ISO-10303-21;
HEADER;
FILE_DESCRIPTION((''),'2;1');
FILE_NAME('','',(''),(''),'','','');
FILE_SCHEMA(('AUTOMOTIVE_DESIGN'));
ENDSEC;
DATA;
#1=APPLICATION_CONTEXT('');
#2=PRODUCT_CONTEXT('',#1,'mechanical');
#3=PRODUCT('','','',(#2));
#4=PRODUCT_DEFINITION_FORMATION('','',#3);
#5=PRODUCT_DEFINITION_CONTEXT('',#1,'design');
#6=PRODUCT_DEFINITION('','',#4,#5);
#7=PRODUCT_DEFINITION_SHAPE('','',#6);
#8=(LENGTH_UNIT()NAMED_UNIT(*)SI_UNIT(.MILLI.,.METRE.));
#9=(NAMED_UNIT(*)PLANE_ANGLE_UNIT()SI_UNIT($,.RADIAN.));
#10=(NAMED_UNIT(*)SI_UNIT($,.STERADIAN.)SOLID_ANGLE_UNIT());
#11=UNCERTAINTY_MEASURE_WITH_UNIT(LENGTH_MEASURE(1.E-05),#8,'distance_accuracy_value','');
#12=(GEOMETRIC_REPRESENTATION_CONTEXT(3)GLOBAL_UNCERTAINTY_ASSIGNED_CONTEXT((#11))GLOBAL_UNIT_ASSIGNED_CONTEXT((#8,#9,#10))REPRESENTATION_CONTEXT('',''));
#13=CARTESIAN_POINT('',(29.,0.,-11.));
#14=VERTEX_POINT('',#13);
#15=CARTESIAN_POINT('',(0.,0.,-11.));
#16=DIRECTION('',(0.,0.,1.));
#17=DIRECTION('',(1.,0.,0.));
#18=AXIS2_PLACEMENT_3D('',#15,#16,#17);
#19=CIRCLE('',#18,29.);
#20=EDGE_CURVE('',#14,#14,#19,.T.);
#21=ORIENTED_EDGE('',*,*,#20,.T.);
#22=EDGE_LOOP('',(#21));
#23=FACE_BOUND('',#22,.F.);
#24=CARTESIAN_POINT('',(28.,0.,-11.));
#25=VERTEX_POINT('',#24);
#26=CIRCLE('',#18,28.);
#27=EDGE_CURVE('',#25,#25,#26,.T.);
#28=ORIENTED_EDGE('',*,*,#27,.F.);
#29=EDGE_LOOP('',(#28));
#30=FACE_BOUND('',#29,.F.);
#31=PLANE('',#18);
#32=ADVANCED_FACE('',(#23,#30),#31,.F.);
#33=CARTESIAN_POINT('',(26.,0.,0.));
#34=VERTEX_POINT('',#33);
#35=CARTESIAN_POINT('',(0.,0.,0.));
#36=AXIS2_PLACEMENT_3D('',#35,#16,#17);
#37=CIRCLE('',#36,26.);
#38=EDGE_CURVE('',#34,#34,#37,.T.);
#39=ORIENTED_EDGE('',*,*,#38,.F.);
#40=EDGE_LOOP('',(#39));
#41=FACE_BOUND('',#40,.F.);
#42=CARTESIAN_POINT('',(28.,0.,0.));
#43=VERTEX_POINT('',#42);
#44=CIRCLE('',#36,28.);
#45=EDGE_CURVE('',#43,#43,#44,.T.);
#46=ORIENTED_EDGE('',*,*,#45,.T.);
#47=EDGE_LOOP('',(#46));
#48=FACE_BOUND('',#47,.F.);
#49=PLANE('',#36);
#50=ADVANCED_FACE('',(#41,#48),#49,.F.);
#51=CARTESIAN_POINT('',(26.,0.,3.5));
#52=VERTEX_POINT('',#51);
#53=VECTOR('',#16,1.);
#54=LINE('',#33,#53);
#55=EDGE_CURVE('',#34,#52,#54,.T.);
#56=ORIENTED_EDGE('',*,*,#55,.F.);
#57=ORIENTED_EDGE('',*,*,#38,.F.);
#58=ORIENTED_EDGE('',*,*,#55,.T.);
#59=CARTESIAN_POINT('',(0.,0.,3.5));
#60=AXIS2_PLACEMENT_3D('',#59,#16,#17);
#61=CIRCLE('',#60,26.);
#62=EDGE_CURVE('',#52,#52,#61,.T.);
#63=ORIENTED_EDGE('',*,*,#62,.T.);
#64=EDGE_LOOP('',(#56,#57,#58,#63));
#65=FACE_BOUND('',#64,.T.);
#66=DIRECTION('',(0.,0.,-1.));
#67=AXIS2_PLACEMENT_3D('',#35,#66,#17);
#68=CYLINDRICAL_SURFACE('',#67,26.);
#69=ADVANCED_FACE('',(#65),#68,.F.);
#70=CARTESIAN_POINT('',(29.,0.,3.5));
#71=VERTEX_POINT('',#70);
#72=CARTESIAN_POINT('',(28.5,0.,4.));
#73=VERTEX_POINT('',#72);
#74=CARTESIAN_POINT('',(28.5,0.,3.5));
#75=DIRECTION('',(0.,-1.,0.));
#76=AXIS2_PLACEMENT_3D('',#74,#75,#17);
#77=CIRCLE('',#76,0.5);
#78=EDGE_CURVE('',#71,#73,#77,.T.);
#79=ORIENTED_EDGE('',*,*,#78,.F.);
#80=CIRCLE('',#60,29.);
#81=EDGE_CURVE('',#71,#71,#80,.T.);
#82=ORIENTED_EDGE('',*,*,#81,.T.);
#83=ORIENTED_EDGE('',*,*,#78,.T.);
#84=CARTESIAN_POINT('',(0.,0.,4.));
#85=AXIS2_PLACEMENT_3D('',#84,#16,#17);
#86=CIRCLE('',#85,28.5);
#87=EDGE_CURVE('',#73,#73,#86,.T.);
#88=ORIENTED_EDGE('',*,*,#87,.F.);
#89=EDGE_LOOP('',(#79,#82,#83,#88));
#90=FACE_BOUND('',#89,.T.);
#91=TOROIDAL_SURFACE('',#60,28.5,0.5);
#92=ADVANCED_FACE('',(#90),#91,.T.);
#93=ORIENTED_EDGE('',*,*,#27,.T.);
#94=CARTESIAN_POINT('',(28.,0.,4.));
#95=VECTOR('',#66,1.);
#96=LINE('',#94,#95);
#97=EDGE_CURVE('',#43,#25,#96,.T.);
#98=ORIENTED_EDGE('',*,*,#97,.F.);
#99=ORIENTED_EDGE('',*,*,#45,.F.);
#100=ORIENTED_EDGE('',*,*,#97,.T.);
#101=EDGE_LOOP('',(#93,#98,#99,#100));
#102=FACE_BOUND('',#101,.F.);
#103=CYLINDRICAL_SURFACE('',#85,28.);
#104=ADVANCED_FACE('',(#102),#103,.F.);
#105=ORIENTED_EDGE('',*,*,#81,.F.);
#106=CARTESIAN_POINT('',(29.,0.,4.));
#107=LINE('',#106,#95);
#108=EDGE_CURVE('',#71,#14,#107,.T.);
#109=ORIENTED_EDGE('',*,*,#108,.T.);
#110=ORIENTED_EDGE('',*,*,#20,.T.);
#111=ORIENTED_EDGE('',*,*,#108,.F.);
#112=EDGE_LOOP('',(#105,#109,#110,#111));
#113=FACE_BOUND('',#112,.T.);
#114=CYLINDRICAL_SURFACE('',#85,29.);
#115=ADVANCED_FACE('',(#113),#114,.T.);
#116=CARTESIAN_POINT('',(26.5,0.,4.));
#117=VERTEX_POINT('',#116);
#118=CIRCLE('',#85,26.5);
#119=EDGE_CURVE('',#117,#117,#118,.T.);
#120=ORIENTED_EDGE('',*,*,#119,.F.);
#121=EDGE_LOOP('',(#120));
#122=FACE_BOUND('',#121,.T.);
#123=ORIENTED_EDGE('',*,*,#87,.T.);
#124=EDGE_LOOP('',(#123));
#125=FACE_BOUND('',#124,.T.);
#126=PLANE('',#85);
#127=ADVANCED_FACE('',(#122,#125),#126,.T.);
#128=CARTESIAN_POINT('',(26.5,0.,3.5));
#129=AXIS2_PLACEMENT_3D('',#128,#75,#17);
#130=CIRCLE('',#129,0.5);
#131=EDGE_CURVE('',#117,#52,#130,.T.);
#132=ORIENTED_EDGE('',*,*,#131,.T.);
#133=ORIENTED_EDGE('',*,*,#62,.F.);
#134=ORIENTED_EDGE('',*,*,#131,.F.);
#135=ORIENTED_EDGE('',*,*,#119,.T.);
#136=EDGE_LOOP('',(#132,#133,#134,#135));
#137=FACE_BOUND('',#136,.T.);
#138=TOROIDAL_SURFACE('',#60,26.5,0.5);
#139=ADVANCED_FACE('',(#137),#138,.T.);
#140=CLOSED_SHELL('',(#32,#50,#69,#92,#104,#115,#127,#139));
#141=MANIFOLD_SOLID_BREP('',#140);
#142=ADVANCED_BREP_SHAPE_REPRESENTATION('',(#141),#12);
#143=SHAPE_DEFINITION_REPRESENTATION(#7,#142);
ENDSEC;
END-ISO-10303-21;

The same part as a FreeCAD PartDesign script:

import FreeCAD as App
import Part
import Sketcher
from FreeCAD import Vector
Q = App.Units.Quantity


def edges_at(feature, points):
    """Names of the edges that pass closest to the given points."""
    edges = feature.Shape.Edges
    near = lambda p: min(range(len(edges)), key=lambda i: edges[i].distToShape(Part.Vertex(*p))[0])
    return sorted({f"Edge{near(p) + 1}" for p in points})

doc = App.newDocument("Part")
body = doc.addObject("PartDesign::Body", "Body")

# Sketch on XY plane
sketch1 = body.newObject("Sketcher::SketchObject", "Sketch")
sketch1.AttachmentSupport = (doc.getObject("XY_Plane"), [""])
sketch1.MapMode = "FlatFace"
sketch1.addGeometry([
    Part.Circle(Vector(0, 0, 0), Vector(0, 0, 1), 28),
    Part.Circle(Vector(0, 0, 0), Vector(0, 0, 1), 26),
], False)
sketch1.addConstraint([
    Sketcher.Constraint("Coincident", 0, 3, -1, 1),
    Sketcher.Constraint("Coincident", 1, 3, -1, 1),
    Sketcher.Constraint("Diameter", 0, Q("56 mm")),
    Sketcher.Constraint("Diameter", 1, Q("52 mm")),
])
pad1 = body.newObject("PartDesign::Pad", "Pad")
pad1.Profile = sketch1
pad1.Length = 4

# Sketch on XY plane
sketch2 = body.newObject("Sketcher::SketchObject", "Sketch001")
sketch2.AttachmentSupport = (doc.getObject("XY_Plane"), [""])
sketch2.MapMode = "FlatFace"
sketch2.AttachmentOffset = App.Placement(Vector(0, 0, 4), App.Rotation())
sketch2.addGeometry([
    Part.Circle(Vector(0, 0, 0), Vector(0, 0, 1), 29),
    Part.Circle(Vector(0, 0, 0), Vector(0, 0, 1), 28),
], False)
sketch2.addConstraint([
    Sketcher.Constraint("Coincident", 0, 3, -1, 1),
    Sketcher.Constraint("Coincident", 1, 3, -1, 1),
    Sketcher.Constraint("Diameter", 0, Q("58 mm")),
    Sketcher.Constraint("Diameter", 1, Q("56 mm")),
])
pad2 = body.newObject("PartDesign::Pad", "Pad001")
pad2.Profile = sketch2
pad2.Length = 15
pad2.Reversed = True
doc.recompute()

fillet = body.newObject("PartDesign::Fillet", "Fillet")
fillet.Base = (pad2, edges_at(pad2, [(-26, 0, 4), (-29, 0, 4)]))
fillet.Radius = 0.5

doc.recompute()
